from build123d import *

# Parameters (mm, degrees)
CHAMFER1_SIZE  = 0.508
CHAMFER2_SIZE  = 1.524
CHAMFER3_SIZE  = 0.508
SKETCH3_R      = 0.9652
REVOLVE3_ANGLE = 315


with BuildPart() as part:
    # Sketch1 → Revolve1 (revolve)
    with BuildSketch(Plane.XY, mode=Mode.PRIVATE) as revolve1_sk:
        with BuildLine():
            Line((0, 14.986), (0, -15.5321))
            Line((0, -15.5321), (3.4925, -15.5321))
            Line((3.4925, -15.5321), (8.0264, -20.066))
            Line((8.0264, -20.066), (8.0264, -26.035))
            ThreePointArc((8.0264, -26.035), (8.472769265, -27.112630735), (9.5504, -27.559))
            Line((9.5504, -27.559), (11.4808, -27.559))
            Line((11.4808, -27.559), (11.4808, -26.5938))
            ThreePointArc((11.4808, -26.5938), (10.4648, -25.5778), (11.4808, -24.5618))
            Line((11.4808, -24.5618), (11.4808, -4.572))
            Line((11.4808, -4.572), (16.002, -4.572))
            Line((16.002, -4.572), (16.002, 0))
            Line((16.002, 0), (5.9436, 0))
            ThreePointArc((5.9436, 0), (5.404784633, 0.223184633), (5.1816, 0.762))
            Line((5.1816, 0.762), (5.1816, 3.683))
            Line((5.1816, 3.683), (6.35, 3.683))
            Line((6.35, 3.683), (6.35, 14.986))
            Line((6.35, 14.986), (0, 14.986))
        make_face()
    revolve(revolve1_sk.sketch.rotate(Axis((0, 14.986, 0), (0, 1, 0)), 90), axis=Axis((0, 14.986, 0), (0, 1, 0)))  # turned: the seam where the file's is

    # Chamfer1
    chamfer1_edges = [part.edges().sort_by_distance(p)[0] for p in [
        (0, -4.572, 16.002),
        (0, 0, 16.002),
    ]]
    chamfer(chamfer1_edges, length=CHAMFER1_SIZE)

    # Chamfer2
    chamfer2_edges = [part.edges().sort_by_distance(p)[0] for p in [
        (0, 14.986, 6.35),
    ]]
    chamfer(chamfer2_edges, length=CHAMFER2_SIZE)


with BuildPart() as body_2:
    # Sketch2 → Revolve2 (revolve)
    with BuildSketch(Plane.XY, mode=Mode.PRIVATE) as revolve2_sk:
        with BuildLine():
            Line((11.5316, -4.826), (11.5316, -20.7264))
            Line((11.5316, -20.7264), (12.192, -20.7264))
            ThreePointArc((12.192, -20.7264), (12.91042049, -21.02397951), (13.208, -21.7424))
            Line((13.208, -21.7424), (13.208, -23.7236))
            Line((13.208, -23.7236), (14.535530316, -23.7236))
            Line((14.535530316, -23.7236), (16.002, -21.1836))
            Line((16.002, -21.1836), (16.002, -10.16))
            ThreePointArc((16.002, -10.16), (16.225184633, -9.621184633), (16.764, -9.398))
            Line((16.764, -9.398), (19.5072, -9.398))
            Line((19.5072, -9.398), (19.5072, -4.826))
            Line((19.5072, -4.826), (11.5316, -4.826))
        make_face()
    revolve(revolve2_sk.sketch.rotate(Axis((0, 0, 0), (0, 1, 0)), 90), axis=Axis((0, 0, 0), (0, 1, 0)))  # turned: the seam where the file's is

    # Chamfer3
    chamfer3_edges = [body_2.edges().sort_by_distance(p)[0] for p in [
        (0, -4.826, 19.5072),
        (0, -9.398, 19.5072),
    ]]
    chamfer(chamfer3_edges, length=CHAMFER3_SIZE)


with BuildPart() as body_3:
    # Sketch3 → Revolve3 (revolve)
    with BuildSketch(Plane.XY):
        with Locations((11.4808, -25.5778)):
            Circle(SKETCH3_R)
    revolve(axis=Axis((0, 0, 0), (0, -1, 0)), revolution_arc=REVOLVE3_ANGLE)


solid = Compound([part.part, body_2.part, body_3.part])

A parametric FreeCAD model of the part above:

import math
import FreeCAD as App
import Part
import Sketcher

V = App.Vector
Q = App.Units.Quantity


def edges_at(feature, points):
    """Names of the edges that pass closest to the given points."""
    edges = feature.Shape.Edges
    near = lambda p: min(range(len(edges)), key=lambda i: edges[i].distToShape(Part.Vertex(*p))[0])
    return sorted({f"Edge{near(p) + 1}" for p in points})

doc = App.newDocument("Part")
body = doc.addObject("PartDesign::Body", "Body")

# Sketch on XY plane
sketch1 = body.newObject("Sketcher::SketchObject", "Sketch")
sketch1.AttachmentSupport = (doc.getObject("XY_Plane"), [""])
sketch1.MapMode = "FlatFace"
sketch1.addGeometry([
    Part.LineSegment(V(0, 14.986, 0), V(0, -15.5321, 0)),  # 0
    Part.LineSegment(V(0, -15.5321, 0), V(3.4925, -15.5321, 0)),  # 1
    Part.LineSegment(V(3.4925, -15.5321, 0), V(8.0264, -20.066, 0)),  # 2
    Part.LineSegment(V(8.0264, -20.066, 0), V(8.0264, -26.035, 0)),  # 3
    Part.ArcOfCircle(Part.Circle(V(9.5504, -26.035, 0), V(0, 0, 1), 1.524), math.radians(180), math.radians(270)),  # 4
    Part.LineSegment(V(9.5504, -27.559, 0), V(11.4808, -27.559, 0)),  # 5
    Part.LineSegment(V(11.4808, -27.559, 0), V(11.4808, -26.5938, 0)),  # 6
    Part.ArcOfCircle(Part.Circle(V(11.4808, -25.5778, 0), V(0, 0, 1), 1.016), math.radians(90), math.radians(270)),  # 7
    Part.LineSegment(V(11.4808, -24.5618, 0), V(11.4808, -4.572, 0)),  # 8
    Part.LineSegment(V(11.4808, -4.572, 0), V(16.002, -4.572, 0)),  # 9
    Part.LineSegment(V(16.002, -4.572, 0), V(16.002, 0, 0)),  # 10
    Part.LineSegment(V(16.002, 0, 0), V(5.9436, 0, 0)),  # 11
    Part.ArcOfCircle(Part.Circle(V(5.9436, 0.762, 0), V(0, 0, 1), 0.762), math.radians(-180), math.radians(-90)),  # 12
    Part.LineSegment(V(5.1816, 0.762, 0), V(5.1816, 3.683, 0)),  # 13
    Part.LineSegment(V(5.1816, 3.683, 0), V(6.35, 3.683, 0)),  # 14
    Part.LineSegment(V(6.35, 3.683, 0), V(6.35, 14.986, 0)),  # 15
    Part.LineSegment(V(6.35, 14.986, 0), V(0, 14.986, 0)),  # 16
], False)
sketch1.addConstraint([
    Sketcher.Constraint("Coincident", 0, 2, 1, 1),
    Sketcher.Constraint("Coincident", 1, 2, 2, 1),
    Sketcher.Constraint("Coincident", 2, 2, 3, 1),
    Sketcher.Constraint("Tangent", 3, 2, 4, 1),
    Sketcher.Constraint("Tangent", 4, 2, 5, 1),
    Sketcher.Constraint("Coincident", 5, 2, 6, 1),
    Sketcher.Constraint("Coincident", 6, 2, 7, 2),
    Sketcher.Constraint("Coincident", 7, 1, 8, 1),
    Sketcher.Constraint("Coincident", 8, 2, 9, 1),
    Sketcher.Constraint("Coincident", 9, 2, 10, 1),
    Sketcher.Constraint("Coincident", 10, 2, 11, 1),
    Sketcher.Constraint("Tangent", 11, 2, 12, 2),
    Sketcher.Constraint("Tangent", 12, 1, 13, 1),
    Sketcher.Constraint("Coincident", 13, 2, 14, 1),
    Sketcher.Constraint("Coincident", 14, 2, 15, 1),
    Sketcher.Constraint("Coincident", 15, 2, 16, 1),
    Sketcher.Constraint("Coincident", 16, 2, 0, 1),
    Sketcher.Constraint("Vertical", 0),
    Sketcher.Constraint("Horizontal", 1),
    Sketcher.Constraint("Vertical", 3),
    Sketcher.Constraint("Horizontal", 5),
    Sketcher.Constraint("Vertical", 6),
    Sketcher.Constraint("Vertical", 8),
    Sketcher.Constraint("Horizontal", 9),
    Sketcher.Constraint("Vertical", 10),
    Sketcher.Constraint("Horizontal", 11),
    Sketcher.Constraint("Vertical", 13),
    Sketcher.Constraint("Horizontal", 14),
    Sketcher.Constraint("Vertical", 15),
    Sketcher.Constraint("Horizontal", 16),
    Sketcher.Constraint("PointOnObject", 0, 2, -2),
    Sketcher.Constraint("PointOnObject", 10, 2, -1),
    Sketcher.Constraint("Vertical", 7, 3, 5, 2),
    Sketcher.Constraint("Vertical", 6, 2, 7, 1),
    Sketcher.Constraint("Radius", 4, Q("0.06 in")),
    Sketcher.Constraint("Radius", 7, Q("0.04 in")),
    Sketcher.Constraint("Radius", 12, Q("0.03 in")),
    Sketcher.Constraint("Angle", 2, Q("-45 deg")),
    Sketcher.Constraint("DistanceX", 16, 2, 16, 1, Q("0.25 in")),
    Sketcher.Constraint("DistanceY", 10, 1, 10, 2, Q("0.18 in")),
    Sketcher.Constraint("DistanceX", 5, 1, 5, 2, Q("0.076 in")),
    Sketcher.Constraint("DistanceX", 9, 1, 9, 2, Q("0.178 in")),
    Sketcher.Constraint("DistanceX", 11, 2, 11, 1, Q("0.396 in")),
    Sketcher.Constraint("DistanceX", 14, 1, 14, 2, Q("0.046 in")),
    Sketcher.Constraint("DistanceY", 3, 2, 3, 1, Q("0.235 in")),
    Sketcher.Constraint("DistanceY", 6, 1, 6, 2, Q("0.038 in")),
    Sketcher.Constraint("DistanceY", 8, 1, 8, 2, Q("0.787 in")),
    Sketcher.Constraint("DistanceY", 13, 1, 13, 2, Q("0.115 in")),
    Sketcher.Constraint("DistanceY", 15, 1, 15, 2, Q("0.445 in")),
    Sketcher.Constraint("DistanceX", 1, 1, 1, 2, Q("0.1375 in")),
])
revolution = body.newObject("PartDesign::Revolution", "Revolution")
revolution.Profile = sketch1
revolution.ReferenceAxis = (sketch1, ["V_Axis"])
revolution.Angle = 360
doc.recompute()

chamfer = body.newObject("PartDesign::Chamfer", "Chamfer")
chamfer.Base = (revolution, edges_at(revolution, [(0, -4.572, 16.002), (0, 0, 16.002)]))
chamfer.Size = Q("0.02 in")
doc.recompute()

chamfer2 = body.newObject("PartDesign::Chamfer", "Chamfer001")
chamfer2.Base = (chamfer, edges_at(chamfer, [(0, 14.986, 6.35)]))
chamfer2.Size = Q("0.06 in")
body2 = doc.addObject("PartDesign::Body", "Body001")

# Sketch on XY plane
sketch2 = body2.newObject("Sketcher::SketchObject", "Sketch001")
sketch2.AttachmentSupport = (doc.getObject("XY_Plane001"), [""])
sketch2.MapMode = "FlatFace"
sketch2.addGeometry([
    Part.LineSegment(V(11.5316, -4.826, 0), V(11.5316, -20.7264, 0)),  # 0
    Part.LineSegment(V(11.5316, -20.7264, 0), V(12.192, -20.7264, 0)),  # 1
    Part.ArcOfCircle(Part.Circle(V(12.192, -21.7424, 0), V(0, 0, 1), 1.016), math.radians(0), math.radians(90)),  # 2
    Part.LineSegment(V(13.208, -21.7424, 0), V(13.208, -23.7236, 0)),  # 3
    Part.LineSegment(V(13.208, -23.7236, 0), V(14.53553, -23.7236, 0)),  # 4
    Part.LineSegment(V(14.53553, -23.7236, 0), V(16.002, -21.1836, 0)),  # 5
    Part.LineSegment(V(16.002, -21.1836, 0), V(16.002, -10.16, 0)),  # 6
    Part.ArcOfCircle(Part.Circle(V(16.764, -10.16, 0), V(0, 0, 1), 0.762), math.radians(90), math.radians(180)),  # 7
    Part.LineSegment(V(16.764, -9.398, 0), V(19.5072, -9.398, 0)),  # 8
    Part.LineSegment(V(19.5072, -9.398, 0), V(19.5072, -4.826, 0)),  # 9
    Part.LineSegment(V(19.5072, -4.826, 0), V(11.5316, -4.826, 0)),  # 10
], False)
sketch2.addConstraint([
    Sketcher.Constraint("Coincident", 0, 2, 1, 1),
    Sketcher.Constraint("Tangent", 1, 2, 2, 2),
    Sketcher.Constraint("Tangent", 2, 1, 3, 1),
    Sketcher.Constraint("Coincident", 3, 2, 4, 1),
    Sketcher.Constraint("Coincident", 4, 2, 5, 1),
    Sketcher.Constraint("Coincident", 5, 2, 6, 1),
    Sketcher.Constraint("Tangent", 6, 2, 7, 2),
    Sketcher.Constraint("Tangent", 7, 1, 8, 1),
    Sketcher.Constraint("Coincident", 8, 2, 9, 1),
    Sketcher.Constraint("Coincident", 9, 2, 10, 1),
    Sketcher.Constraint("Coincident", 10, 2, 0, 1),
    Sketcher.Constraint("Vertical", 0),
    Sketcher.Constraint("Horizontal", 1),
    Sketcher.Constraint("Vertical", 3),
    Sketcher.Constraint("Horizontal", 4),
    Sketcher.Constraint("Vertical", 6),
    Sketcher.Constraint("Horizontal", 8),
    Sketcher.Constraint("Vertical", 9),
    Sketcher.Constraint("Horizontal", 10),
    Sketcher.Constraint("Radius", 2, Q("0.04 in")),
    Sketcher.Constraint("Radius", 7, Q("0.03 in")),
    Sketcher.Constraint("Angle", 5, Q("60 deg")),
    Sketcher.Constraint("DistanceY", 9, 1, 9, 2, Q("0.18 in")),
    Sketcher.Constraint("DistanceY", 7, 3, -1, 1, Q("0.4 in")),
    Sketcher.Constraint("DistanceY", 4, 2, 5, 2, Q("0.1 in")),
    Sketcher.Constraint("DistanceX", 1, 1, 1, 2, Q("0.026 in")),
    Sketcher.Constraint("DistanceX", 8, 1, 8, 2, Q("0.108 in")),
    Sketcher.Constraint("DistanceX", 10, 2, 10, 1, Q("0.314 in")),
    Sketcher.Constraint("DistanceY", 0, 2, 0, 1, Q("0.626 in")),
    Sketcher.Constraint("DistanceY", 3, 2, 3, 1, Q("0.078 in")),
    Sketcher.Constraint("DistanceX", -1, 1, 2, 3, Q("0.48 in")),
])
revolution2 = body2.newObject("PartDesign::Revolution", "Revolution001")
revolution2.Profile = sketch2
revolution2.ReferenceAxis = (sketch2, ["V_Axis"])
revolution2.Angle = 360
doc.recompute()

chamfer3 = body2.newObject("PartDesign::Chamfer", "Chamfer002")
chamfer3.Base = (revolution2, edges_at(revolution2, [(0, -4.826, 19.507), (0, -9.398, 19.507)]))
chamfer3.Size = Q("0.02 in")
body3 = doc.addObject("PartDesign::Body", "Body002")

# Sketch on XY plane
sketch3 = body3.newObject("Sketcher::SketchObject", "Sketch002")
sketch3.AttachmentSupport = (doc.getObject("XY_Plane002"), [""])
sketch3.MapMode = "FlatFace"
sketch3.addGeometry(Part.Circle(V(11.4808, -25.5778, 0), V(0, 0, 1), 0.9652), False)
sketch3.addConstraint([
    Sketcher.Constraint("Diameter", 0, Q("0.076 in")),
    Sketcher.Constraint("DistanceX", -1, 1, 0, 3, Q("0.452 in")),
    Sketcher.Constraint("DistanceY", 0, 3, -1, 1, Q("1.007 in")),
])
revolution3 = body3.newObject("PartDesign::Revolution", "Revolution002")
revolution3.Profile = sketch3
revolution3.ReferenceAxis = (sketch3, ["V_Axis"])
revolution3.Angle = 315
revolution3.Reversed = True

doc.recompute()
